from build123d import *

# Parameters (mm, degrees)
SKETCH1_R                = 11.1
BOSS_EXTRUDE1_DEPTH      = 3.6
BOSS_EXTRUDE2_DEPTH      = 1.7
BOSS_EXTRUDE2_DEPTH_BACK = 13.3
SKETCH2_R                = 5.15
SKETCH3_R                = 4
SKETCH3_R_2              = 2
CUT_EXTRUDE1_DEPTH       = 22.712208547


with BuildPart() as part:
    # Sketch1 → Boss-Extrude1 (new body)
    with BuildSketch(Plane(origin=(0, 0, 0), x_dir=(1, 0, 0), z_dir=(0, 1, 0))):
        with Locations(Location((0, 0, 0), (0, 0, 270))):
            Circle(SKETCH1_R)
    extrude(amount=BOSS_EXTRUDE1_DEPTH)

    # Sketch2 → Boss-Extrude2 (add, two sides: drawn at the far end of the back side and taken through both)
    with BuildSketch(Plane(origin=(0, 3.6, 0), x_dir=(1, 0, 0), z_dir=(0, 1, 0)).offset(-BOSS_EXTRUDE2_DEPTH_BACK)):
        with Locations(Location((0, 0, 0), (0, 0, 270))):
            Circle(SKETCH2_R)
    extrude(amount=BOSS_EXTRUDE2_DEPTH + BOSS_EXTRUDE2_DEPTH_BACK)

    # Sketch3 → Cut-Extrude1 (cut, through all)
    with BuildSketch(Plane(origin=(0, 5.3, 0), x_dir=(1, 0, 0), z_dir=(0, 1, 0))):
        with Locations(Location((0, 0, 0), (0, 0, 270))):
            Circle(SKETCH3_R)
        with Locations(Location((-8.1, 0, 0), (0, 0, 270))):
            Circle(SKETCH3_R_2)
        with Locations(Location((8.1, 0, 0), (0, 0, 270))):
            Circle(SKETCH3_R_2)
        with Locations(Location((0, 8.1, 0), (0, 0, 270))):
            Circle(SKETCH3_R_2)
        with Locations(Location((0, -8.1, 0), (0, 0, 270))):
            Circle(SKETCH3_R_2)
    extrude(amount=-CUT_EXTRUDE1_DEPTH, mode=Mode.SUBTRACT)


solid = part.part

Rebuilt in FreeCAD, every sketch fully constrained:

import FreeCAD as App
import Part
import Sketcher
Q = App.Units.Quantity

doc = App.newDocument("Part")
body = doc.addObject("PartDesign::Body", "Body")

sketch1 = doc.addObject("Sketcher::SketchObject", "Sketch")
body.addObject(sketch1)
sketch1.AttachmentSupport = (doc.XZ_Plane, [""])
sketch1.MapMode = "FlatFace"
sketch1.addGeometry(Part.Circle(App.Vector(0, 0, 0), App.Vector(0, 0, 1), 11), False)
sketch1.addConstraint(Sketcher.Constraint("Coincident", 0, 3, -1, 1))
sketch1.addConstraint(Sketcher.Constraint("Diameter", 0, Q("22.2 mm")))
pad1 = doc.addObject("PartDesign::Pad", "Pad")
body.addObject(pad1)
pad1.Profile = sketch1
pad1.Length = 3.6
pad1.Reversed = True

sketch2 = doc.addObject("Sketcher::SketchObject", "Sketch001")
body.addObject(sketch2)
sketch2.AttachmentSupport = (doc.XZ_Plane, [""])
sketch2.MapMode = "FlatFace"
sketch2.AttachmentOffset = App.Placement(App.Vector(0, 0, -3.6), App.Rotation())
sketch2.addGeometry(Part.Circle(App.Vector(0, 0, 0), App.Vector(0, 0, 1), 5), False)
sketch2.addConstraint(Sketcher.Constraint("Coincident", 0, 3, -1, 1))
sketch2.addConstraint(Sketcher.Constraint("Diameter", 0, Q("10.3 mm")))
pad2 = doc.addObject("PartDesign::Pad", "Pad001")
body.addObject(pad2)
pad2.Profile = sketch2
pad2.Type = "TwoLengths"
pad2.Length = 1.7
pad2.Length2 = 13.3
pad2.Reversed = True

sketch3 = doc.addObject("Sketcher::SketchObject", "Sketch002")
body.addObject(sketch3)
sketch3.AttachmentSupport = (doc.XZ_Plane, [""])
sketch3.MapMode = "FlatFace"
sketch3.AttachmentOffset = App.Placement(App.Vector(0, 0, -5.3), App.Rotation())
sketch3.addGeometry(Part.Circle(App.Vector(0, 0, 0), App.Vector(0, 0, 1), 4), False)
sketch3.addGeometry(Part.Circle(App.Vector(-8.1, 0, 0), App.Vector(0, 0, 1), 2), False)
sketch3.addGeometry(Part.Circle(App.Vector(8.1, 0, 0), App.Vector(0, 0, 1), 2), False)
sketch3.addGeometry(Part.Circle(App.Vector(0, -8.1, 0), App.Vector(0, 0, 1), 2), False)
sketch3.addGeometry(Part.Circle(App.Vector(0, 8.1, 0), App.Vector(0, 0, 1), 2), False)
sketch3.addConstraint(Sketcher.Constraint("Coincident", 0, 3, -1, 1))
sketch3.addConstraint(Sketcher.Constraint("Equal", 1, 2))
sketch3.addConstraint(Sketcher.Constraint("Equal", 2, 3))
sketch3.addConstraint(Sketcher.Constraint("Equal", 3, 4))
sketch3.addConstraint(Sketcher.Constraint("Symmetric", 1, 3, 2, 3, -1, 1))
sketch3.addConstraint(Sketcher.Constraint("Symmetric", 3, 3, 4, 3, -1, 1))
sketch3.addConstraint(Sketcher.Constraint("PointOnObject", 1, 3, -1))
sketch3.addConstraint(Sketcher.Constraint("PointOnObject", 3, 3, -2))
sketch3.addConstraint(Sketcher.Constraint("Diameter", 0, Q("8 mm")))
sketch3.addConstraint(Sketcher.Constraint("Diameter", 1, Q("4 mm")))
sketch3.addConstraint(Sketcher.Constraint("DistanceX", 1, 3, -1, 1, Q("8.1 mm")))
sketch3.addConstraint(Sketcher.Constraint("DistanceY", 3, 3, -1, 1, Q("8.1 mm")))
pocket1 = doc.addObject("PartDesign::Pocket", "Pocket")
body.addObject(pocket1)
pocket1.Profile = sketch3
pocket1.Type = "ThroughAll"
pocket1.Reversed = True

doc.recompute()
